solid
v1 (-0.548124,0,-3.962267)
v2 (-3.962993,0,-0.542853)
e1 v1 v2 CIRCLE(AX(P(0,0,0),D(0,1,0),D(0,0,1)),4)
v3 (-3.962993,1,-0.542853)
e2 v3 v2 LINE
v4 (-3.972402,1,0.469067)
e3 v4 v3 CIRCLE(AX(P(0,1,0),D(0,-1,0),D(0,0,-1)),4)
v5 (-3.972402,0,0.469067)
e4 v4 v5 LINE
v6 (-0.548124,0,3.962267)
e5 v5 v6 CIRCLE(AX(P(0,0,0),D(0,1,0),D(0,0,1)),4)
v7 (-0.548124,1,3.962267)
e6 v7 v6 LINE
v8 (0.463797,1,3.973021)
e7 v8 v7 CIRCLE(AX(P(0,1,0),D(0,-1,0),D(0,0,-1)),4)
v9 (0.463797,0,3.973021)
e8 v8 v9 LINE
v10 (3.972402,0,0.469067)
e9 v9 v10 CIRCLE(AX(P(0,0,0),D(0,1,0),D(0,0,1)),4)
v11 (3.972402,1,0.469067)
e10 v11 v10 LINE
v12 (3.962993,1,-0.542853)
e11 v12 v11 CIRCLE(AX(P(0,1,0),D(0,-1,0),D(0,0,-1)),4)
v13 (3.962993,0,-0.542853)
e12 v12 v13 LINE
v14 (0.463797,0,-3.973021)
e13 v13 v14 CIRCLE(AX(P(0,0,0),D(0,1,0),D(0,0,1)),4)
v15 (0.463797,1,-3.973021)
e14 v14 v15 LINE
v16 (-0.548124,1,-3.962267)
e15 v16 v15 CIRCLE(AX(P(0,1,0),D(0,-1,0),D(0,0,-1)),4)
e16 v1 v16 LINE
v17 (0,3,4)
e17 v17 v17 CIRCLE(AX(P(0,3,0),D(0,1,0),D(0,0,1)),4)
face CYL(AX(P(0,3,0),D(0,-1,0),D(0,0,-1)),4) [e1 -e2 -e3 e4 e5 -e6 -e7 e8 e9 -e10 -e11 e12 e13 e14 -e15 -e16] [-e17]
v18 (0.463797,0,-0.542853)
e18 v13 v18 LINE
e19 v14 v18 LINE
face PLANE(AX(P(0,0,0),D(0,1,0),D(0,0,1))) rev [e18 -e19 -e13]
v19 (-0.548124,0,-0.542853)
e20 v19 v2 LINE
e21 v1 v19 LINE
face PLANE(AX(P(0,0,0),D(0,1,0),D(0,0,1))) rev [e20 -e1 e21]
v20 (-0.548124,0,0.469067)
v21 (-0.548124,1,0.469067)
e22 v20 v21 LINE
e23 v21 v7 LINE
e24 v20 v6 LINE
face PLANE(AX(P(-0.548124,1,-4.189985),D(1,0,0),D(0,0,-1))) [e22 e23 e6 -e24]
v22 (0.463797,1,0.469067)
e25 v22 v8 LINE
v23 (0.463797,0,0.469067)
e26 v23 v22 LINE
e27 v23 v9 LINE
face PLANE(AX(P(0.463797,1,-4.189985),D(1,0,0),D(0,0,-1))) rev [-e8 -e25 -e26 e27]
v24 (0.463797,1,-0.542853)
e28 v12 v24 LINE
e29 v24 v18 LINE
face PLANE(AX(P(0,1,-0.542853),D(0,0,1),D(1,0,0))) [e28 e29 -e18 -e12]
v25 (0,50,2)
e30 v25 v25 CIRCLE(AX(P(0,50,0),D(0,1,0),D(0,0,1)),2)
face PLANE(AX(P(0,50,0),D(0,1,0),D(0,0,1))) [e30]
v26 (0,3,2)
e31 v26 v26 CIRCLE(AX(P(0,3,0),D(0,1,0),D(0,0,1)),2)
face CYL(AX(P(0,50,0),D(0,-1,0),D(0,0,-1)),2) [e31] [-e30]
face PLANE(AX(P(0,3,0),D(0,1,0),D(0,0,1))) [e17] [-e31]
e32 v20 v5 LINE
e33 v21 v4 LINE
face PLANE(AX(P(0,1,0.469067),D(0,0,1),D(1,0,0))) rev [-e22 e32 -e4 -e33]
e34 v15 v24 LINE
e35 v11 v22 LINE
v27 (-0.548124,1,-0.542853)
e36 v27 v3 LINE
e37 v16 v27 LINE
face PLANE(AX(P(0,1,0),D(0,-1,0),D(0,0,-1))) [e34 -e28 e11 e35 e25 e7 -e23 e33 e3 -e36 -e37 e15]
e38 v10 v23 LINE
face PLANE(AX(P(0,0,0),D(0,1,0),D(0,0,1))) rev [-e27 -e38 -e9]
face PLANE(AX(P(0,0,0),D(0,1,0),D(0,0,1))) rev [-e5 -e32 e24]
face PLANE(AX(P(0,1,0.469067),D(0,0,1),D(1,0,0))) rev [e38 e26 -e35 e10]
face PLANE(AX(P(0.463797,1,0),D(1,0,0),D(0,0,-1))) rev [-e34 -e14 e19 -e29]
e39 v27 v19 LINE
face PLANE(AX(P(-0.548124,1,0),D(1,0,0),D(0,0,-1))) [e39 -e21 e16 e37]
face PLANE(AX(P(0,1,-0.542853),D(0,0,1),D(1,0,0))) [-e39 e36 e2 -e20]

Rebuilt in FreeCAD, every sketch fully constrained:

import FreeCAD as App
import Part
import Sketcher
from FreeCAD import Vector

doc = App.newDocument("Part")
body = doc.addObject("PartDesign::Body", "Body")

# Sketch on XZ plane
sketch1 = doc.addObject("Sketcher::SketchObject", "Sketch")
body.addObject(sketch1)
sketch1.AttachmentSupport = (doc.XZ_Plane, [""])
sketch1.MapMode = "FlatFace"
sketch1.addGeometry([
    Part.Circle(Vector(0, 0, 0), Vector(0, 0, 1), 4),
    Part.Circle(Vector(0, 0, 0), Vector(0, 0, 1), 2),
], False)
sketch1.addConstraint([
    Sketcher.Constraint("Coincident", 0, 3, -1, 1),
    Sketcher.Constraint("Coincident", 1, 3, -1, 1),
    Sketcher.Constraint("Diameter", 0, 8.0),
    Sketcher.Constraint("Diameter", 1, 4.0),
])
pad1 = doc.addObject("PartDesign::Pad", "Pad")
body.addObject(pad1)
pad1.Profile = sketch1
pad1.Length = 3
pad1.Reversed = True

# Sketch on XZ plane
sketch2 = doc.addObject("Sketcher::SketchObject", "Sketch001")
body.addObject(sketch2)
sketch2.AttachmentSupport = (doc.XZ_Plane, [""])
sketch2.MapMode = "FlatFace"
sketch2.addGeometry(Part.Circle(Vector(0, 0, 0), Vector(0, 0, 1), 2), False)
sketch2.addConstraint([
    Sketcher.Constraint("Coincident", 0, 3, -1, 1),
    Sketcher.Constraint("Diameter", 0, 4.0),
])
pad2 = doc.addObject("PartDesign::Pad", "Pad001")
body.addObject(pad2)
pad2.Profile = sketch2
pad2.Length = 50
pad2.Reversed = True

# Sketch on XZ plane
sketch3 = doc.addObject("Sketcher::SketchObject", "Sketch002")
body.addObject(sketch3)
sketch3.AttachmentSupport = (doc.XZ_Plane, [""])
sketch3.MapMode = "FlatFace"
sketch3.addGeometry([
    Part.LineSegment(Vector(0.463797, 0.469067, 0), Vector(0.463797, 4.337556, 0)),  # 0
    Part.LineSegment(Vector(0.463797, 4.337556, 0), Vector(-0.548124, 4.337556, 0)),  # 1
    Part.LineSegment(Vector(-0.548124, 4.337556, 0), Vector(-0.548124, 0.469067, 0)),  # 2
    Part.LineSegment(Vector(-0.548124, 0.469067, 0), Vector(-4.332286, 0.469067, 0)),  # 3
    Part.LineSegment(Vector(-4.332286, 0.469067, 0), Vector(-4.332286, -0.542853, 0)),  # 4
    Part.LineSegment(Vector(-4.332286, -0.542853, 0), Vector(-0.548124, -0.542853, 0)),  # 5
    Part.LineSegment(Vector(-0.548124, -0.542853, 0), Vector(-0.548124, -4.189985, 0)),  # 6
    Part.LineSegment(Vector(-0.548124, -4.189985, 0), Vector(0.463797, -4.189985, 0)),  # 7
    Part.LineSegment(Vector(0.463797, -4.189985, 0), Vector(0.463797, -0.542853, 0)),  # 8
    Part.LineSegment(Vector(0.463797, -0.542853, 0), Vector(4.38499, -0.542853, 0)),  # 9
    Part.LineSegment(Vector(4.38499, -0.542853, 0), Vector(4.38499, 0.469067, 0)),  # 10
    Part.LineSegment(Vector(4.38499, 0.469067, 0), Vector(0.463797, 0.469067, 0)),  # 11
], False)
sketch3.addConstraint([
    Sketcher.Constraint("Coincident", 0, 2, 1, 1),
    Sketcher.Constraint("Coincident", 1, 2, 2, 1),
    Sketcher.Constraint("Coincident", 2, 2, 3, 1),
    Sketcher.Constraint("Coincident", 3, 2, 4, 1),
    Sketcher.Constraint("Coincident", 4, 2, 5, 1),
    Sketcher.Constraint("Coincident", 5, 2, 6, 1),
    Sketcher.Constraint("Coincident", 6, 2, 7, 1),
    Sketcher.Constraint("Coincident", 7, 2, 8, 1),
    Sketcher.Constraint("Coincident", 8, 2, 9, 1),
    Sketcher.Constraint("Coincident", 9, 2, 10, 1),
    Sketcher.Constraint("Coincident", 10, 2, 11, 1),
    Sketcher.Constraint("Coincident", 11, 2, 0, 1),
    Sketcher.Constraint("Vertical", 0),
    Sketcher.Constraint("Horizontal", 1),
    Sketcher.Constraint("Vertical", 2),
    Sketcher.Constraint("Horizontal", 3),
    Sketcher.Constraint("Vertical", 4),
    Sketcher.Constraint("Horizontal", 5),
    Sketcher.Constraint("Vertical", 6),
    Sketcher.Constraint("Horizontal", 7),
    Sketcher.Constraint("Vertical", 8),
    Sketcher.Constraint("Horizontal", 9),
    Sketcher.Constraint("Vertical", 10),
    Sketcher.Constraint("Horizontal", 11),
    Sketcher.Constraint("Horizontal", 5, 2, 8, 2),
    Sketcher.Constraint("Horizontal", 3, 2, 10, 2),
    Sketcher.Constraint("Vertical", 2, 2, 5, 2),
    Sketcher.Constraint("Vertical", 0, 2, 7, 2),
    Sketcher.Constraint("Equal", 7, 4),
    Sketcher.Constraint("DistanceX", 1, 2, 1, 1, 1.011921),
    Sketcher.Constraint("DistanceY", 0, 1, 0, 2, 3.868489),
    Sketcher.Constraint("DistanceY", 6, 2, 6, 1, 3.647131),
    Sketcher.Constraint("DistanceX", 3, 2, 3, 1, 3.784162),
    Sketcher.Constraint("DistanceX", 9, 1, 9, 2, 3.921193),
    Sketcher.Constraint("DistanceX", -1, 1, 9, 2, 4.38499),
    Sketcher.Constraint("DistanceY", -1, 1, 0, 2, 4.337556),
])
pocket1 = doc.addObject("PartDesign::Pocket", "Pocket")
body.addObject(pocket1)
pocket1.Profile = sketch3
pocket1.Length = 1

doc.recompute()
